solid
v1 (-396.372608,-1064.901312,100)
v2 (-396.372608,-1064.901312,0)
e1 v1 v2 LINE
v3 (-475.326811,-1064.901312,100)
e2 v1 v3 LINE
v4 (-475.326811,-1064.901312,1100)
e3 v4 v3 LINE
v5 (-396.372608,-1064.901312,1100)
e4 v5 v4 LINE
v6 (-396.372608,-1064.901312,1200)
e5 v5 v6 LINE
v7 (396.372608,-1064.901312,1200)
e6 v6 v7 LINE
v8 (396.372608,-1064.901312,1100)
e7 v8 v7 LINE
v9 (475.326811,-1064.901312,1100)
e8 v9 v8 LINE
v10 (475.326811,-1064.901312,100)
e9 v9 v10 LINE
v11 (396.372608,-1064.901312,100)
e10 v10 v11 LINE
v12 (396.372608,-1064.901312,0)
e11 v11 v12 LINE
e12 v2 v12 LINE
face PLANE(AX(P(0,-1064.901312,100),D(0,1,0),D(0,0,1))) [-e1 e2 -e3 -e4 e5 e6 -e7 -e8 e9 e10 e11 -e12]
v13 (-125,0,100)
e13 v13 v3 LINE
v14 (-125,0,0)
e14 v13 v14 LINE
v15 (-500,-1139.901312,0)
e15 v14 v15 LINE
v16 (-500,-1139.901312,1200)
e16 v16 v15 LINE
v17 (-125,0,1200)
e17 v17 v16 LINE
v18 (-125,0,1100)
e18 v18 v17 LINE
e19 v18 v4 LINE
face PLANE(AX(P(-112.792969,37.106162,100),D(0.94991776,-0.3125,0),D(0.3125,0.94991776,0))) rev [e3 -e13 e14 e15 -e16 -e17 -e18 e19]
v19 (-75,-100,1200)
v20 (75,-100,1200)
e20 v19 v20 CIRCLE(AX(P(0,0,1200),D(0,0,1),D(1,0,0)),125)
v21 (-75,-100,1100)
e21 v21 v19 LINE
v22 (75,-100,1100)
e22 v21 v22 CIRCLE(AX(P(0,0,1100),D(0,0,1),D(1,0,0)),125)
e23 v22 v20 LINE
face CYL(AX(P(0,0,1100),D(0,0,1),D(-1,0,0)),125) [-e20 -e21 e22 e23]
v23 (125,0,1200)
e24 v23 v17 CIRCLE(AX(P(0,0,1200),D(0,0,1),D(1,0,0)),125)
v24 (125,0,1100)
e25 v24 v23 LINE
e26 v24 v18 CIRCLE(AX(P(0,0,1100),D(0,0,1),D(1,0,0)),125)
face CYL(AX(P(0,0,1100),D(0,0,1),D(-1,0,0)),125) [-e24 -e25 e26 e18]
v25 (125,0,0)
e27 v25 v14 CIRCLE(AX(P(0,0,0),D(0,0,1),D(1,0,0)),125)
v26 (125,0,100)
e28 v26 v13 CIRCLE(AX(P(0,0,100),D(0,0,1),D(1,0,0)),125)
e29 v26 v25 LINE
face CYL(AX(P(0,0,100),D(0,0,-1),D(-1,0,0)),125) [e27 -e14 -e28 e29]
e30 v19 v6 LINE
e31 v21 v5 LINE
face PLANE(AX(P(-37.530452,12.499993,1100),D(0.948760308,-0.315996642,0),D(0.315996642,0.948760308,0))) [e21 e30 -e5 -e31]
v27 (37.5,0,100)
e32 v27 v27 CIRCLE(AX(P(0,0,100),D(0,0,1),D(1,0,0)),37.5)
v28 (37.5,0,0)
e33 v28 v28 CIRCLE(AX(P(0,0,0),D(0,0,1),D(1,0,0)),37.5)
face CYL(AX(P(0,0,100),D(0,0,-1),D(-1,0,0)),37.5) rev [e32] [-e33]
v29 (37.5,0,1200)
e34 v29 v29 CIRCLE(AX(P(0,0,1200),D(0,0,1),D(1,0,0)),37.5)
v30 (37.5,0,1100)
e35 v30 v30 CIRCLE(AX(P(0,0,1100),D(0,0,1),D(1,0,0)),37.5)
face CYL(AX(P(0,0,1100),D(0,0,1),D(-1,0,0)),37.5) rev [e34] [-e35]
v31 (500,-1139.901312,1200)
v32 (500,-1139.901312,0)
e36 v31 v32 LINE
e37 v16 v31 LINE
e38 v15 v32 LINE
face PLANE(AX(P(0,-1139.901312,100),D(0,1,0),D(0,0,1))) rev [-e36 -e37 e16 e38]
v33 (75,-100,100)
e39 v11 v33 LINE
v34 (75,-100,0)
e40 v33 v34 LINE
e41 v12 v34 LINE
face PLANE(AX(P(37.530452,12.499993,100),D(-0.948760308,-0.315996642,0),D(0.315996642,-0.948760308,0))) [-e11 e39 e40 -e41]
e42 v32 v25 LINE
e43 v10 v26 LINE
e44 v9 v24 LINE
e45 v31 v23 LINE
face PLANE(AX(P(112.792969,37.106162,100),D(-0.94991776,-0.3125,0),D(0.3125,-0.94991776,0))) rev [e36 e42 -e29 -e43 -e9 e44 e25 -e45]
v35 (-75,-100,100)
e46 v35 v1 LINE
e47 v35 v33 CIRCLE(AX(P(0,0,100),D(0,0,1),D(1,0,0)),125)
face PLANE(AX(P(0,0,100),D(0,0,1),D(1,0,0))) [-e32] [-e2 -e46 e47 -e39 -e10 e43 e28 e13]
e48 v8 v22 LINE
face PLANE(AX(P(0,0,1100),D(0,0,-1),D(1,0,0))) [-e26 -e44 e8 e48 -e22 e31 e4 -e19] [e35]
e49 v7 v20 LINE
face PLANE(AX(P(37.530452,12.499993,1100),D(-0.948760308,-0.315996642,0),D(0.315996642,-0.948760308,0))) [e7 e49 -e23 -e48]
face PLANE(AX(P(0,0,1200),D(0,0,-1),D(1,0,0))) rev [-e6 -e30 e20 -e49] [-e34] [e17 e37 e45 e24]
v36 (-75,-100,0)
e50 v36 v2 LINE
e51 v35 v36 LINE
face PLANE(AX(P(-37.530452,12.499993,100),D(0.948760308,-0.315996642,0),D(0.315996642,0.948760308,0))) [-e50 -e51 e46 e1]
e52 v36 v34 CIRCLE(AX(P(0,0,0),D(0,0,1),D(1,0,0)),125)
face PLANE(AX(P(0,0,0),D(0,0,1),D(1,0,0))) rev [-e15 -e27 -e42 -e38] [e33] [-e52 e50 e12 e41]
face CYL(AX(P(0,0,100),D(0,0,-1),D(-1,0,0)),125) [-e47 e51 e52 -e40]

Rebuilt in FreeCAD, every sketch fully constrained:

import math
import FreeCAD as App
import Part
import Sketcher
Q = App.Units.Quantity

doc = App.newDocument("Part")
body = doc.addObject("PartDesign::Body", "Body")

sketch1 = body.newObject("Sketcher::SketchObject", "Sketch")
sketch1.AttachmentSupport = (doc.getObject("XY_Plane"), [""])
sketch1.MapMode = "FlatFace"
sketch1.addGeometry([
    Part.LineSegment(App.Vector(-125, 0, 0), App.Vector(-500, -1140, 0)),
    Part.LineSegment(App.Vector(-500, -1140, 0), App.Vector(500, -1140, 0)),
    Part.LineSegment(App.Vector(500, -1140, 0), App.Vector(125, 0, 0)),
    Part.ArcOfCircle(Part.Circle(App.Vector(0, 0, 0), App.Vector(0, 0, 1), 125), math.radians(0), math.radians(180)),
    Part.LineSegment(App.Vector(75, -100, 0), App.Vector(396, -1065, 0)),
    Part.LineSegment(App.Vector(396, -1065, 0), App.Vector(-396, -1065, 0)),
    Part.LineSegment(App.Vector(-396, -1065, 0), App.Vector(-75, -100, 0)),
    Part.ArcOfCircle(Part.Circle(App.Vector(0, 0, 0), App.Vector(0, 0, 1), 125), math.radians(-127), math.radians(-53)),
    Part.Circle(App.Vector(0, 0, 0), App.Vector(0, 0, 1), 38),
], False)
sketch1.addConstraint([
    Sketcher.Constraint("Coincident", 0, 2, 1, 1),
    Sketcher.Constraint("Coincident", 1, 2, 2, 1),
    Sketcher.Constraint("Coincident", 2, 2, 3, 1),
    Sketcher.Constraint("Coincident", 3, 2, 0, 1),
    Sketcher.Constraint("Coincident", 4, 2, 5, 1),
    Sketcher.Constraint("Coincident", 5, 2, 6, 1),
    Sketcher.Constraint("Coincident", 6, 2, 7, 1),
    Sketcher.Constraint("Coincident", 7, 2, 4, 1),
    Sketcher.Constraint("Horizontal", 1),
    Sketcher.Constraint("Horizontal", 5),
    Sketcher.Constraint("Coincident", 3, 3, -1, 1),
    Sketcher.Constraint("Coincident", 7, 3, -1, 1),
    Sketcher.Constraint("Coincident", 8, 3, -1, 1),
    Sketcher.Constraint("Equal", 3, 7),
    Sketcher.Constraint("PointOnObject", 2, 2, -1),
    Sketcher.Constraint("PointOnObject", 3, 2, -1),
    Sketcher.Constraint("Horizontal", 6, 2, 7, 2),
    Sketcher.Constraint("Equal", 0, 2),
    Sketcher.Constraint("Equal", 4, 6),
    Sketcher.Constraint("Diameter", 8, Q("75 mm")),
    Sketcher.Constraint("Radius", 3, Q("125 mm")),
    Sketcher.Constraint("DistanceX", 1, 1, 1, 2, Q("1000 mm")),
    Sketcher.Constraint("Distance", 0, Q("1200 mm")),
    Sketcher.Constraint("DistanceX", 6, 2, -1, 1, Q("75 mm")),
    Sketcher.Constraint("DistanceY", 1, 2, 4, 2, Q("75 mm")),
    Sketcher.Constraint("Distance", 4, Q("1017.012731 mm")),
])
pad1 = body.newObject("PartDesign::Pad", "Pad")
pad1.Profile = sketch1
pad1.Length = 100

sketch2 = body.newObject("Sketcher::SketchObject", "Sketch001")
sketch2.AttachmentSupport = (doc.getObject("XY_Plane"), [""])
sketch2.MapMode = "FlatFace"
sketch2.AttachmentOffset = App.Placement(App.Vector(0, 0, 100), App.Rotation())
sketch2.addGeometry([
    Part.LineSegment(App.Vector(-475, -1065, 0), App.Vector(-500, -1140, 0)),
    Part.LineSegment(App.Vector(-500, -1140, 0), App.Vector(500, -1140, 0)),
    Part.LineSegment(App.Vector(500, -1140, 0), App.Vector(475, -1065, 0)),
    Part.LineSegment(App.Vector(475, -1065, 0), App.Vector(-475, -1065, 0)),
], False)
sketch2.addConstraint([
    Sketcher.Constraint("Coincident", 0, 2, 1, 1),
    Sketcher.Constraint("Coincident", 1, 2, 2, 1),
    Sketcher.Constraint("Coincident", 2, 2, 3, 1),
    Sketcher.Constraint("Coincident", 3, 2, 0, 1),
    Sketcher.Constraint("Horizontal", 1),
    Sketcher.Constraint("Horizontal", 3),
    Sketcher.Constraint("Equal", 0, 2),
    Sketcher.Constraint("DistanceX", 1, 1, 1, 2, Q("1000 mm")),
    Sketcher.Constraint("DistanceX", 0, 2, -1, 1, Q("500 mm")),
    Sketcher.Constraint("DistanceY", 1, 2, 2, 2, Q("75 mm")),
    Sketcher.Constraint("DistanceX", 3, 2, 3, 1, Q("950.653623 mm")),
    Sketcher.Constraint("DistanceY", 0, 2, -1, 1, Q("1139.901312 mm")),
])
pad2 = body.newObject("PartDesign::Pad", "Pad001")
pad2.Profile = sketch2
pad2.Length = 500
body2 = doc.addObject("PartDesign::Body", "Body001")
doc.recompute()

body2.BaseFeature = body
doc.recompute()

mirroring = doc.addObject("Part::Mirroring", "Mirroring")
mirroring.Source = body
mirroring.Base = App.Vector(0, 0, 600)
mirroring.Normal = App.Vector(0, 0, 1)
body3 = doc.addObject("PartDesign::Body", "Body002")
body3.BaseFeature = mirroring
boolean = body2.newObject("PartDesign::Boolean", "Boolean")
boolean.Type = "Fuse"
boolean.addObjects([body3])
doc.recompute()
mirroring.Visibility = False

doc.recompute()
